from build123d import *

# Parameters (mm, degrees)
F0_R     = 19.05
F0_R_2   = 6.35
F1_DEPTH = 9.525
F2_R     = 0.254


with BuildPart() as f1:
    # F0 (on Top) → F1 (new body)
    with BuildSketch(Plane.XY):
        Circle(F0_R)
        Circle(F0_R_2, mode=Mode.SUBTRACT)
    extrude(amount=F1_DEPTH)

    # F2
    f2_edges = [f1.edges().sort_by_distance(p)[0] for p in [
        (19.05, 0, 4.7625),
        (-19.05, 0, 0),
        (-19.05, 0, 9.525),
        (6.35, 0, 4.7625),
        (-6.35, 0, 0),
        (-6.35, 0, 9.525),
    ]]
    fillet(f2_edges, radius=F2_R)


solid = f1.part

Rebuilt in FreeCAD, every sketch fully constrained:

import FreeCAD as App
import Part
import Sketcher

V = App.Vector
Q = App.Units.Quantity

doc = App.newDocument("Part")
body = doc.addObject("PartDesign::Body", "Body")

# Sketch on XY plane
sketch1 = body.newObject("Sketcher::SketchObject", "Sketch")
sketch1.AttachmentSupport = (doc.getObject("XY_Plane"), [""])
sketch1.MapMode = "FlatFace"
sketch1.addGeometry([
    Part.Circle(V(0, 0, 0), V(0, 0, 1), 19),
    Part.Circle(V(0, 0, 0), V(0, 0, 1), 6),
], False)
sketch1.addConstraint([
    Sketcher.Constraint("Coincident", 0, 3, -1, 1),
    Sketcher.Constraint("Coincident", 1, 3, -1, 1),
    Sketcher.Constraint("Diameter", 0, Q("1.5 in")),
    Sketcher.Constraint("Diameter", 1, Q("0.5 in")),
])
pad1 = body.newObject("PartDesign::Pad", "Pad")
pad1.Profile = sketch1
pad1.Length = Q("0.375 in")
doc.recompute()

fillet = body.newObject("PartDesign::Fillet", "Fillet")
fillet.Base = (pad1, ["Edge1"])
fillet.UseAllEdges = True
fillet.Radius = Q("0.01 in")

doc.recompute()
